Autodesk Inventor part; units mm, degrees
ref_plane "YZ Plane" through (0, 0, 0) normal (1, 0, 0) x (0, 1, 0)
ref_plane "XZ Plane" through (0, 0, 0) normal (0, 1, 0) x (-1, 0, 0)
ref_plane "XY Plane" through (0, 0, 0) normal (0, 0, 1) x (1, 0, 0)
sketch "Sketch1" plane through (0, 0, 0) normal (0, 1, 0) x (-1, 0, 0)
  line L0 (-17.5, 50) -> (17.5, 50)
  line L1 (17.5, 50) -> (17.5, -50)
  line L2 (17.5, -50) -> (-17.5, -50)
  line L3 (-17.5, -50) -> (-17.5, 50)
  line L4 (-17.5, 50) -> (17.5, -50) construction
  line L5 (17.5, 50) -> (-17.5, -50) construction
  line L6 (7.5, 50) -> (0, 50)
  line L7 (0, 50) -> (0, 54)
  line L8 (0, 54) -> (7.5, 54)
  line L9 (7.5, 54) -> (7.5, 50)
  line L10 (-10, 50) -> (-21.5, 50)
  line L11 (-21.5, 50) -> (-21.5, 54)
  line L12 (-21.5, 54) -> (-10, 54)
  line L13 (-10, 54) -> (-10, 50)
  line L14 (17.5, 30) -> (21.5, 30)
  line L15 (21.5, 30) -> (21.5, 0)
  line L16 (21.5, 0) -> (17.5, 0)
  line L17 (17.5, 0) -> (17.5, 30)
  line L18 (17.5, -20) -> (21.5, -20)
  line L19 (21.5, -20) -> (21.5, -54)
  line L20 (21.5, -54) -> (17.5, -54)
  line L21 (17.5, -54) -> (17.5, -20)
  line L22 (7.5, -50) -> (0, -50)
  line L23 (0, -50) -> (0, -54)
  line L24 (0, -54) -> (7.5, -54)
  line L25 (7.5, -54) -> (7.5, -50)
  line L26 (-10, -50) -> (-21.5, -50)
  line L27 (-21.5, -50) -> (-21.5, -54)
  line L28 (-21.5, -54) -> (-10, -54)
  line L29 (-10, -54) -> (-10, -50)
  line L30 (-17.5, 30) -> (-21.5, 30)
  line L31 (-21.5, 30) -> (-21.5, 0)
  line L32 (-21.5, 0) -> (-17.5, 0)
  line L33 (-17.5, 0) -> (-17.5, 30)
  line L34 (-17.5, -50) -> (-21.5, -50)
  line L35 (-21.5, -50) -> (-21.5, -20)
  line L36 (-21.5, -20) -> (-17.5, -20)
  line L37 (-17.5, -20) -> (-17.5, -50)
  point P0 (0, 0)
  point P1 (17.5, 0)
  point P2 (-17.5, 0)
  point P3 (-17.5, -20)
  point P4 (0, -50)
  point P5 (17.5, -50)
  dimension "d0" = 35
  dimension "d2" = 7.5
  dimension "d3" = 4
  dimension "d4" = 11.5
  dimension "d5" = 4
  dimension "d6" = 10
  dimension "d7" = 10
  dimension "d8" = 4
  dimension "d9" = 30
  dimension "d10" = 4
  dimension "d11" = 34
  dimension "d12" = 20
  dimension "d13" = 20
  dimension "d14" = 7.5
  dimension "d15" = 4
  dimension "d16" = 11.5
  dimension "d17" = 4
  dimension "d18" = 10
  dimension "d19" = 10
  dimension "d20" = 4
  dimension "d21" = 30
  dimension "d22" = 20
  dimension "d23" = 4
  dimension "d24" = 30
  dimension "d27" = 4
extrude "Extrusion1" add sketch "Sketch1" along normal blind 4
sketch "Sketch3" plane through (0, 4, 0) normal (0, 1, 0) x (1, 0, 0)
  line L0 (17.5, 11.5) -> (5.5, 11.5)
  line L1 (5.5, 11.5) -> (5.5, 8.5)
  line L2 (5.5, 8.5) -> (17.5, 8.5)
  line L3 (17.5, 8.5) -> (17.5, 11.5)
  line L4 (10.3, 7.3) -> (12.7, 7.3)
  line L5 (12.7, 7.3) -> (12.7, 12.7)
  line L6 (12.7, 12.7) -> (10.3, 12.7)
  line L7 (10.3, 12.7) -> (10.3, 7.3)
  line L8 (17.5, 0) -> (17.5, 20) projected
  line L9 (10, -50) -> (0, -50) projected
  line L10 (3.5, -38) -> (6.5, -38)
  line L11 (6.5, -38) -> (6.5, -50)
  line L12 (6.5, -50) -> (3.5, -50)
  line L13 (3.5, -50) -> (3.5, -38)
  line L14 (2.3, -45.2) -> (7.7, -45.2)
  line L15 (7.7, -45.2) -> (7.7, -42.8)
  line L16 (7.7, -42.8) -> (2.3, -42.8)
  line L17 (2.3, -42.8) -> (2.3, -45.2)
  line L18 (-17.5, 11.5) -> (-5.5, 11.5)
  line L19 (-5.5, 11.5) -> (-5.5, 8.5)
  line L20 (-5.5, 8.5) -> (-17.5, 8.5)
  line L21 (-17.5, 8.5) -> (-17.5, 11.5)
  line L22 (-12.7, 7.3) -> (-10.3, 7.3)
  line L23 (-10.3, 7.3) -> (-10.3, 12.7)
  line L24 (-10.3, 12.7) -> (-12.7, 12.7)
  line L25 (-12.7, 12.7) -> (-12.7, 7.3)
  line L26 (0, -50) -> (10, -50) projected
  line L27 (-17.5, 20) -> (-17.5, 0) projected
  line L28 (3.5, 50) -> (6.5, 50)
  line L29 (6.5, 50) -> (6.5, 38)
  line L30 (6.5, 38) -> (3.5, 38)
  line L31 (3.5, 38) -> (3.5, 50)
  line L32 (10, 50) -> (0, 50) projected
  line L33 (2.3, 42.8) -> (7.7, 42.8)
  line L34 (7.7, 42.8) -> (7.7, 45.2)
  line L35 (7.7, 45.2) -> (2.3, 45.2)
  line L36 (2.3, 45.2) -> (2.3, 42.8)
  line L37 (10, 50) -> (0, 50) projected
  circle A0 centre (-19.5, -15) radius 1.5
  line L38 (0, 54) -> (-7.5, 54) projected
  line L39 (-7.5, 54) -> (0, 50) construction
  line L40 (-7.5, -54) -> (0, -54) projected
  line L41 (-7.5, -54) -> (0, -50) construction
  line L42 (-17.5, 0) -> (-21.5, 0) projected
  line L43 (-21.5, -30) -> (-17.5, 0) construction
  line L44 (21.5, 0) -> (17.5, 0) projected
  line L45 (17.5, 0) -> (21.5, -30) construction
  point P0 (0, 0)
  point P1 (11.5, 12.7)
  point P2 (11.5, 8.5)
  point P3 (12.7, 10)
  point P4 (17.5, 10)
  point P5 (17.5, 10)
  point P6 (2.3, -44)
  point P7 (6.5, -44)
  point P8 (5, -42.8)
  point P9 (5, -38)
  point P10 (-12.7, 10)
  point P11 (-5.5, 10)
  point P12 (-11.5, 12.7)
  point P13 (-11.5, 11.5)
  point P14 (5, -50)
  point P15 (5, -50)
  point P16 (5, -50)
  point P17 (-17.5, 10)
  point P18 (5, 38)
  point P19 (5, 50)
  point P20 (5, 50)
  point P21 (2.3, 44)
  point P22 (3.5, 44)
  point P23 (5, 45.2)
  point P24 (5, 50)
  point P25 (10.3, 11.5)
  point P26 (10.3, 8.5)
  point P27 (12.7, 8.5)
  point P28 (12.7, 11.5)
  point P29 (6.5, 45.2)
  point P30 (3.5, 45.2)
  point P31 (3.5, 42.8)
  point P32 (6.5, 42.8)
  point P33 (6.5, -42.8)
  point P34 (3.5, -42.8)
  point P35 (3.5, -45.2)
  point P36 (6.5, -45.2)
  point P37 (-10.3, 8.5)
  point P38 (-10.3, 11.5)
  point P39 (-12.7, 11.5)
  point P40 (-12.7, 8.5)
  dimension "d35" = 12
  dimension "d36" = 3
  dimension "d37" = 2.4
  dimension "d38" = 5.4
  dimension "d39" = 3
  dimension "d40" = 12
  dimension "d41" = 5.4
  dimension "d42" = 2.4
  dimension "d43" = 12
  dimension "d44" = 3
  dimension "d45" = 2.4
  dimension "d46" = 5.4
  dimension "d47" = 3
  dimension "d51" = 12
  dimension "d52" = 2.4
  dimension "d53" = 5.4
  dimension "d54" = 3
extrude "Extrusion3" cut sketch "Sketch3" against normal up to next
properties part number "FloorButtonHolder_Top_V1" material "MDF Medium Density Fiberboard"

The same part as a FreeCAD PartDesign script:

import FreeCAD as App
import Part
import Sketcher
from FreeCAD import Vector
Q = App.Units.Quantity

doc = App.newDocument("Part")
body = doc.addObject("PartDesign::Body", "Body")

# Sketch on XZ plane
sketch1 = body.newObject("Sketcher::SketchObject", "Sketch")
sketch1.AttachmentSupport = (doc.getObject("XZ_Plane"), [""])
sketch1.MapMode = "FlatFace"
sketch1.addGeometry(Part.LineSegment(Vector(21.5, 50, 0), Vector(17.5, 50, 0)), False)
sketch1.addGeometry(Part.LineSegment(Vector(17.5, 50, 0), Vector(17.5, 30, 0)), False)
sketch1.addGeometry(Part.LineSegment(Vector(17.5, 30, 0), Vector(21.5, 30, 0)), False)
sketch1.addGeometry(Part.LineSegment(Vector(21.5, 30, 0), Vector(21.5, 0, 0)), False)
sketch1.addGeometry(Part.LineSegment(Vector(21.5, 0, 0), Vector(17.5, 0, 0)), False)
sketch1.addGeometry(Part.LineSegment(Vector(17.5, 0, 0), Vector(17.5, -20, 0)), False)
sketch1.addGeometry(Part.LineSegment(Vector(17.5, -20, 0), Vector(21.5, -20, 0)), False)
sketch1.addGeometry(Part.LineSegment(Vector(21.5, -20, 0), Vector(21.5, -54, 0)), False)
sketch1.addGeometry(Part.LineSegment(Vector(21.5, -54, 0), Vector(10, -54, 0)), False)
sketch1.addGeometry(Part.LineSegment(Vector(10, -54, 0), Vector(10, -50, 0)), False)
sketch1.addGeometry(Part.LineSegment(Vector(10, -50, 0), Vector(0, -50, 0)), False)
sketch1.addGeometry(Part.LineSegment(Vector(0, -50, 0), Vector(0, -54, 0)), False)
sketch1.addGeometry(Part.LineSegment(Vector(0, -54, 0), Vector(-7.5, -54, 0)), False)
sketch1.addGeometry(Part.LineSegment(Vector(-7.5, -54, 0), Vector(-7.5, -50, 0)), False)
sketch1.addGeometry(Part.LineSegment(Vector(-7.5, -50, 0), Vector(-17.5, -50, 0)), False)
sketch1.addGeometry(Part.LineSegment(Vector(-17.5, -50, 0), Vector(-17.5, -54, 0)), False)
sketch1.addGeometry(Part.LineSegment(Vector(-17.5, -54, 0), Vector(-21.5, -54, 0)), False)
sketch1.addGeometry(Part.LineSegment(Vector(-21.5, -54, 0), Vector(-21.5, -20, 0)), False)
sketch1.addGeometry(Part.LineSegment(Vector(-21.5, -20, 0), Vector(-17.5, -20, 0)), False)
sketch1.addGeometry(Part.LineSegment(Vector(-17.5, -20, 0), Vector(-17.5, 0, 0)), False)
sketch1.addGeometry(Part.LineSegment(Vector(-17.5, 0, 0), Vector(-21.5, 0, 0)), False)
sketch1.addGeometry(Part.LineSegment(Vector(-21.5, 0, 0), Vector(-21.5, 30, 0)), False)
sketch1.addGeometry(Part.LineSegment(Vector(-21.5, 30, 0), Vector(-17.5, 30, 0)), False)
sketch1.addGeometry(Part.LineSegment(Vector(-17.5, 30, 0), Vector(-17.5, 50, 0)), False)
sketch1.addGeometry(Part.LineSegment(Vector(-17.5, 50, 0), Vector(-7.5, 50, 0)), False)
sketch1.addGeometry(Part.LineSegment(Vector(-7.5, 50, 0), Vector(-7.5, 54, 0)), False)
sketch1.addGeometry(Part.LineSegment(Vector(-7.5, 54, 0), Vector(0, 54, 0)), False)
sketch1.addGeometry(Part.LineSegment(Vector(0, 54, 0), Vector(0, 50, 0)), False)
sketch1.addGeometry(Part.LineSegment(Vector(0, 50, 0), Vector(10, 50, 0)), False)
sketch1.addGeometry(Part.LineSegment(Vector(10, 50, 0), Vector(10, 54, 0)), False)
sketch1.addGeometry(Part.LineSegment(Vector(10, 54, 0), Vector(21.5, 54, 0)), False)
sketch1.addGeometry(Part.LineSegment(Vector(21.5, 54, 0), Vector(21.5, 50, 0)), False)
sketch1.addConstraint(Sketcher.Constraint("Coincident", 0, 2, 1, 1))
sketch1.addConstraint(Sketcher.Constraint("Coincident", 1, 2, 2, 1))
sketch1.addConstraint(Sketcher.Constraint("Coincident", 2, 2, 3, 1))
sketch1.addConstraint(Sketcher.Constraint("Coincident", 3, 2, 4, 1))
sketch1.addConstraint(Sketcher.Constraint("Coincident", 4, 2, 5, 1))
sketch1.addConstraint(Sketcher.Constraint("Coincident", 5, 2, 6, 1))
sketch1.addConstraint(Sketcher.Constraint("Coincident", 6, 2, 7, 1))
sketch1.addConstraint(Sketcher.Constraint("Coincident", 7, 2, 8, 1))
sketch1.addConstraint(Sketcher.Constraint("Coincident", 8, 2, 9, 1))
sketch1.addConstraint(Sketcher.Constraint("Coincident", 9, 2, 10, 1))
sketch1.addConstraint(Sketcher.Constraint("Coincident", 10, 2, 11, 1))
sketch1.addConstraint(Sketcher.Constraint("Coincident", 11, 2, 12, 1))
sketch1.addConstraint(Sketcher.Constraint("Coincident", 12, 2, 13, 1))
sketch1.addConstraint(Sketcher.Constraint("Coincident", 13, 2, 14, 1))
sketch1.addConstraint(Sketcher.Constraint("Coincident", 14, 2, 15, 1))
sketch1.addConstraint(Sketcher.Constraint("Coincident", 15, 2, 16, 1))
sketch1.addConstraint(Sketcher.Constraint("Coincident", 16, 2, 17, 1))
sketch1.addConstraint(Sketcher.Constraint("Coincident", 17, 2, 18, 1))
sketch1.addConstraint(Sketcher.Constraint("Coincident", 18, 2, 19, 1))
sketch1.addConstraint(Sketcher.Constraint("Coincident", 19, 2, 20, 1))
sketch1.addConstraint(Sketcher.Constraint("Coincident", 20, 2, 21, 1))
sketch1.addConstraint(Sketcher.Constraint("Coincident", 21, 2, 22, 1))
sketch1.addConstraint(Sketcher.Constraint("Coincident", 22, 2, 23, 1))
sketch1.addConstraint(Sketcher.Constraint("Coincident", 23, 2, 24, 1))
sketch1.addConstraint(Sketcher.Constraint("Coincident", 24, 2, 25, 1))
sketch1.addConstraint(Sketcher.Constraint("Coincident", 25, 2, 26, 1))
sketch1.addConstraint(Sketcher.Constraint("Coincident", 26, 2, 27, 1))
sketch1.addConstraint(Sketcher.Constraint("Coincident", 27, 2, 28, 1))
sketch1.addConstraint(Sketcher.Constraint("Coincident", 28, 2, 29, 1))
sketch1.addConstraint(Sketcher.Constraint("Coincident", 29, 2, 30, 1))
sketch1.addConstraint(Sketcher.Constraint("Coincident", 30, 2, 31, 1))
sketch1.addConstraint(Sketcher.Constraint("Coincident", 31, 2, 0, 1))
sketch1.addConstraint(Sketcher.Constraint("Horizontal", 0))
sketch1.addConstraint(Sketcher.Constraint("Vertical", 1))
sketch1.addConstraint(Sketcher.Constraint("Horizontal", 2))
sketch1.addConstraint(Sketcher.Constraint("Vertical", 3))
sketch1.addConstraint(Sketcher.Constraint("Horizontal", 4))
sketch1.addConstraint(Sketcher.Constraint("Vertical", 5))
sketch1.addConstraint(Sketcher.Constraint("Horizontal", 6))
sketch1.addConstraint(Sketcher.Constraint("Vertical", 7))
sketch1.addConstraint(Sketcher.Constraint("Horizontal", 8))
sketch1.addConstraint(Sketcher.Constraint("Vertical", 9))
sketch1.addConstraint(Sketcher.Constraint("Horizontal", 10))
sketch1.addConstraint(Sketcher.Constraint("Vertical", 11))
sketch1.addConstraint(Sketcher.Constraint("Horizontal", 12))
sketch1.addConstraint(Sketcher.Constraint("Vertical", 13))
sketch1.addConstraint(Sketcher.Constraint("Horizontal", 14))
sketch1.addConstraint(Sketcher.Constraint("Vertical", 15))
sketch1.addConstraint(Sketcher.Constraint("Horizontal", 16))
sketch1.addConstraint(Sketcher.Constraint("Vertical", 17))
sketch1.addConstraint(Sketcher.Constraint("Horizontal", 18))
sketch1.addConstraint(Sketcher.Constraint("Vertical", 19))
sketch1.addConstraint(Sketcher.Constraint("Horizontal", 20))
sketch1.addConstraint(Sketcher.Constraint("Vertical", 21))
sketch1.addConstraint(Sketcher.Constraint("Horizontal", 22))
sketch1.addConstraint(Sketcher.Constraint("Vertical", 23))
sketch1.addConstraint(Sketcher.Constraint("Horizontal", 24))
sketch1.addConstraint(Sketcher.Constraint("Vertical", 25))
sketch1.addConstraint(Sketcher.Constraint("Horizontal", 26))
sketch1.addConstraint(Sketcher.Constraint("Vertical", 27))
sketch1.addConstraint(Sketcher.Constraint("Horizontal", 28))
sketch1.addConstraint(Sketcher.Constraint("Vertical", 29))
sketch1.addConstraint(Sketcher.Constraint("Horizontal", 30))
sketch1.addConstraint(Sketcher.Constraint("Vertical", 31))
sketch1.addConstraint(Sketcher.Constraint("Symmetric", 0, 2, 14, 2, -1, 1))
sketch1.addConstraint(Sketcher.Constraint("Symmetric", 4, 2, 19, 2, -1, 1))
sketch1.addConstraint(Sketcher.Constraint("Symmetric", 11, 2, 26, 2, -1, 1))
sketch1.addConstraint(Sketcher.Constraint("Symmetric", 16, 2, 30, 2, -1, 1))
sketch1.addConstraint(Sketcher.Constraint("Symmetric", 7, 2, 16, 2, -2))
sketch1.addConstraint(Sketcher.Constraint("Symmetric", 3, 2, 20, 2, -2))
sketch1.addConstraint(Sketcher.Constraint("Symmetric", 1, 2, 22, 2, -2))
sketch1.addConstraint(Sketcher.Constraint("Symmetric", 13, 2, 24, 2, -1))
sketch1.addConstraint(Sketcher.Constraint("Symmetric", 10, 2, 27, 2, -1))
sketch1.addConstraint(Sketcher.Constraint("Horizontal", 8, 2, 11, 2))
sketch1.addConstraint(Sketcher.Constraint("Horizontal", 10, 2, 13, 2))
sketch1.addConstraint(Sketcher.Constraint("Horizontal", 6, 2, 17, 2))
sketch1.addConstraint(Sketcher.Constraint("Vertical", 1, 2, 4, 2))
sketch1.addConstraint(Sketcher.Constraint("Vertical", 3, 2, 6, 2))
sketch1.addConstraint(Sketcher.Constraint("Vertical", 9, 2, 28, 2))
sketch1.addConstraint(Sketcher.Constraint("Equal", 10, 14))
sketch1.addConstraint(Sketcher.Constraint("Equal", 1, 5))
sketch1.addConstraint(Sketcher.Constraint("Equal", 22, 9))
sketch1.addConstraint(Sketcher.Constraint("DistanceX", 0, 2, 0, 1, Q("4 mm")))
sketch1.addConstraint(Sketcher.Constraint("DistanceX", 10, 2, 10, 1, Q("10 mm")))
sketch1.addConstraint(Sketcher.Constraint("DistanceY", 1, 2, 1, 1, Q("20 mm")))
sketch1.addConstraint(Sketcher.Constraint("DistanceY", 3, 2, 3, 1, Q("30 mm")))
sketch1.addConstraint(Sketcher.Constraint("DistanceX", 8, 2, 8, 1, Q("11.5 mm")))
pad1 = body.newObject("PartDesign::Pad", "Pad")
pad1.Profile = sketch1
pad1.Length = 4
pad1.Reversed = True

# Sketch on XZ plane
sketch2 = body.newObject("Sketcher::SketchObject", "Sketch001")
sketch2.AttachmentSupport = (doc.getObject("XZ_Plane"), [""])
sketch2.MapMode = "FlatFace"
sketch2.AttachmentOffset = App.Placement(Vector(0, 0, -4), App.Rotation())
sketch2.addGeometry(Part.LineSegment(Vector(17.5, -8.5, 0), Vector(17.5, -11.5, 0)), False)
sketch2.addGeometry(Part.LineSegment(Vector(17.5, -11.5, 0), Vector(12.7, -11.5, 0)), False)
sketch2.addGeometry(Part.LineSegment(Vector(12.7, -11.5, 0), Vector(12.7, -12.7, 0)), False)
sketch2.addGeometry(Part.LineSegment(Vector(12.7, -12.7, 0), Vector(10.3, -12.7, 0)), False)
sketch2.addGeometry(Part.LineSegment(Vector(10.3, -12.7, 0), Vector(10.3, -11.5, 0)), False)
sketch2.addGeometry(Part.LineSegment(Vector(10.3, -11.5, 0), Vector(5.5, -11.5, 0)), False)
sketch2.addGeometry(Part.LineSegment(Vector(5.5, -11.5, 0), Vector(5.5, -8.5, 0)), False)
sketch2.addGeometry(Part.LineSegment(Vector(5.5, -8.5, 0), Vector(10.3, -8.5, 0)), False)
sketch2.addGeometry(Part.LineSegment(Vector(10.3, -8.5, 0), Vector(10.3, -7.3, 0)), False)
sketch2.addGeometry(Part.LineSegment(Vector(10.3, -7.3, 0), Vector(12.7, -7.3, 0)), False)
sketch2.addGeometry(Part.LineSegment(Vector(12.7, -7.3, 0), Vector(12.7, -8.5, 0)), False)
sketch2.addGeometry(Part.LineSegment(Vector(12.7, -8.5, 0), Vector(17.5, -8.5, 0)), False)
sketch2.addGeometry(Part.LineSegment(Vector(3.5, 50, 0), Vector(6.5, 50, 0)), False)
sketch2.addGeometry(Part.LineSegment(Vector(6.5, 50, 0), Vector(6.5, 45.2, 0)), False)
sketch2.addGeometry(Part.LineSegment(Vector(6.5, 45.2, 0), Vector(7.7, 45.2, 0)), False)
sketch2.addGeometry(Part.LineSegment(Vector(7.7, 45.2, 0), Vector(7.7, 42.8, 0)), False)
sketch2.addGeometry(Part.LineSegment(Vector(7.7, 42.8, 0), Vector(6.5, 42.8, 0)), False)
sketch2.addGeometry(Part.LineSegment(Vector(6.5, 42.8, 0), Vector(6.5, 38, 0)), False)
sketch2.addGeometry(Part.LineSegment(Vector(6.5, 38, 0), Vector(3.5, 38, 0)), False)
sketch2.addGeometry(Part.LineSegment(Vector(3.5, 38, 0), Vector(3.5, 42.8, 0)), False)
sketch2.addGeometry(Part.LineSegment(Vector(3.5, 42.8, 0), Vector(2.3, 42.8, 0)), False)
sketch2.addGeometry(Part.LineSegment(Vector(2.3, 42.8, 0), Vector(2.3, 45.2, 0)), False)
sketch2.addGeometry(Part.LineSegment(Vector(2.3, 45.2, 0), Vector(3.5, 45.2, 0)), False)
sketch2.addGeometry(Part.LineSegment(Vector(3.5, 45.2, 0), Vector(3.5, 50, 0)), False)
sketch2.addGeometry(Part.LineSegment(Vector(-12.7, -11.5, 0), Vector(-17.5, -11.5, 0)), False)
sketch2.addGeometry(Part.LineSegment(Vector(-17.5, -11.5, 0), Vector(-17.5, -8.5, 0)), False)
sketch2.addGeometry(Part.LineSegment(Vector(-17.5, -8.5, 0), Vector(-12.7, -8.5, 0)), False)
sketch2.addGeometry(Part.LineSegment(Vector(-12.7, -8.5, 0), Vector(-12.7, -7.3, 0)), False)
sketch2.addGeometry(Part.LineSegment(Vector(-12.7, -7.3, 0), Vector(-10.3, -7.3, 0)), False)
sketch2.addGeometry(Part.LineSegment(Vector(-10.3, -7.3, 0), Vector(-10.3, -8.5, 0)), False)
sketch2.addGeometry(Part.LineSegment(Vector(-10.3, -8.5, 0), Vector(-5.5, -8.5, 0)), False)
sketch2.addGeometry(Part.LineSegment(Vector(-5.5, -8.5, 0), Vector(-5.5, -11.5, 0)), False)
sketch2.addGeometry(Part.LineSegment(Vector(-5.5, -11.5, 0), Vector(-10.3, -11.5, 0)), False)
sketch2.addGeometry(Part.LineSegment(Vector(-10.3, -11.5, 0), Vector(-10.3, -12.7, 0)), False)
sketch2.addGeometry(Part.LineSegment(Vector(-10.3, -12.7, 0), Vector(-12.7, -12.7, 0)), False)
sketch2.addGeometry(Part.LineSegment(Vector(-12.7, -12.7, 0), Vector(-12.7, -11.5, 0)), False)
sketch2.addGeometry(Part.LineSegment(Vector(6.5, -50, 0), Vector(3.5, -50, 0)), False)
sketch2.addGeometry(Part.LineSegment(Vector(3.5, -50, 0), Vector(3.5, -45.2, 0)), False)
sketch2.addGeometry(Part.LineSegment(Vector(3.5, -45.2, 0), Vector(2.3, -45.2, 0)), False)
sketch2.addGeometry(Part.LineSegment(Vector(2.3, -45.2, 0), Vector(2.3, -42.8, 0)), False)
sketch2.addGeometry(Part.LineSegment(Vector(2.3, -42.8, 0), Vector(3.5, -42.8, 0)), False)
sketch2.addGeometry(Part.LineSegment(Vector(3.5, -42.8, 0), Vector(3.5, -38, 0)), False)
sketch2.addGeometry(Part.LineSegment(Vector(3.5, -38, 0), Vector(6.5, -38, 0)), False)
sketch2.addGeometry(Part.LineSegment(Vector(6.5, -38, 0), Vector(6.5, -42.8, 0)), False)
sketch2.addGeometry(Part.LineSegment(Vector(6.5, -42.8, 0), Vector(7.7, -42.8, 0)), False)
sketch2.addGeometry(Part.LineSegment(Vector(7.7, -42.8, 0), Vector(7.7, -45.2, 0)), False)
sketch2.addGeometry(Part.LineSegment(Vector(7.7, -45.2, 0), Vector(6.5, -45.2, 0)), False)
sketch2.addGeometry(Part.LineSegment(Vector(6.5, -45.2, 0), Vector(6.5, -50, 0)), False)
sketch2.addGeometry(Part.Circle(Vector(-19.5, 15, 0), Vector(0, 0, 1), 1.5), False)
sketch2.addConstraint(Sketcher.Constraint("Coincident", 0, 2, 1, 1))
sketch2.addConstraint(Sketcher.Constraint("Coincident", 1, 2, 2, 1))
sketch2.addConstraint(Sketcher.Constraint("Coincident", 2, 2, 3, 1))
sketch2.addConstraint(Sketcher.Constraint("Coincident", 3, 2, 4, 1))
sketch2.addConstraint(Sketcher.Constraint("Coincident", 4, 2, 5, 1))
sketch2.addConstraint(Sketcher.Constraint("Coincident", 5, 2, 6, 1))
sketch2.addConstraint(Sketcher.Constraint("Coincident", 6, 2, 7, 1))
sketch2.addConstraint(Sketcher.Constraint("Coincident", 7, 2, 8, 1))
sketch2.addConstraint(Sketcher.Constraint("Coincident", 8, 2, 9, 1))
sketch2.addConstraint(Sketcher.Constraint("Coincident", 9, 2, 10, 1))
sketch2.addConstraint(Sketcher.Constraint("Coincident", 10, 2, 11, 1))
sketch2.addConstraint(Sketcher.Constraint("Coincident", 11, 2, 0, 1))
sketch2.addConstraint(Sketcher.Constraint("Coincident", 12, 2, 13, 1))
sketch2.addConstraint(Sketcher.Constraint("Coincident", 13, 2, 14, 1))
sketch2.addConstraint(Sketcher.Constraint("Coincident", 14, 2, 15, 1))
sketch2.addConstraint(Sketcher.Constraint("Coincident", 15, 2, 16, 1))
sketch2.addConstraint(Sketcher.Constraint("Coincident", 16, 2, 17, 1))
sketch2.addConstraint(Sketcher.Constraint("Coincident", 17, 2, 18, 1))
sketch2.addConstraint(Sketcher.Constraint("Coincident", 18, 2, 19, 1))
sketch2.addConstraint(Sketcher.Constraint("Coincident", 19, 2, 20, 1))
sketch2.addConstraint(Sketcher.Constraint("Coincident", 20, 2, 21, 1))
sketch2.addConstraint(Sketcher.Constraint("Coincident", 21, 2, 22, 1))
sketch2.addConstraint(Sketcher.Constraint("Coincident", 22, 2, 23, 1))
sketch2.addConstraint(Sketcher.Constraint("Coincident", 23, 2, 12, 1))
sketch2.addConstraint(Sketcher.Constraint("Coincident", 24, 2, 25, 1))
sketch2.addConstraint(Sketcher.Constraint("Coincident", 25, 2, 26, 1))
sketch2.addConstraint(Sketcher.Constraint("Coincident", 26, 2, 27, 1))
sketch2.addConstraint(Sketcher.Constraint("Coincident", 27, 2, 28, 1))
sketch2.addConstraint(Sketcher.Constraint("Coincident", 28, 2, 29, 1))
sketch2.addConstraint(Sketcher.Constraint("Coincident", 29, 2, 30, 1))
sketch2.addConstraint(Sketcher.Constraint("Coincident", 30, 2, 31, 1))
sketch2.addConstraint(Sketcher.Constraint("Coincident", 31, 2, 32, 1))
sketch2.addConstraint(Sketcher.Constraint("Coincident", 32, 2, 33, 1))
sketch2.addConstraint(Sketcher.Constraint("Coincident", 33, 2, 34, 1))
sketch2.addConstraint(Sketcher.Constraint("Coincident", 34, 2, 35, 1))
sketch2.addConstraint(Sketcher.Constraint("Coincident", 35, 2, 24, 1))
sketch2.addConstraint(Sketcher.Constraint("Coincident", 36, 2, 37, 1))
sketch2.addConstraint(Sketcher.Constraint("Coincident", 37, 2, 38, 1))
sketch2.addConstraint(Sketcher.Constraint("Coincident", 38, 2, 39, 1))
sketch2.addConstraint(Sketcher.Constraint("Coincident", 39, 2, 40, 1))
sketch2.addConstraint(Sketcher.Constraint("Coincident", 40, 2, 41, 1))
sketch2.addConstraint(Sketcher.Constraint("Coincident", 41, 2, 42, 1))
sketch2.addConstraint(Sketcher.Constraint("Coincident", 42, 2, 43, 1))
sketch2.addConstraint(Sketcher.Constraint("Coincident", 43, 2, 44, 1))
sketch2.addConstraint(Sketcher.Constraint("Coincident", 44, 2, 45, 1))
sketch2.addConstraint(Sketcher.Constraint("Coincident", 45, 2, 46, 1))
sketch2.addConstraint(Sketcher.Constraint("Coincident", 46, 2, 47, 1))
sketch2.addConstraint(Sketcher.Constraint("Coincident", 47, 2, 36, 1))
sketch2.addConstraint(Sketcher.Constraint("Vertical", 0))
sketch2.addConstraint(Sketcher.Constraint("Horizontal", 1))
sketch2.addConstraint(Sketcher.Constraint("Vertical", 2))
sketch2.addConstraint(Sketcher.Constraint("Horizontal", 3))
sketch2.addConstraint(Sketcher.Constraint("Vertical", 4))
sketch2.addConstraint(Sketcher.Constraint("Horizontal", 5))
sketch2.addConstraint(Sketcher.Constraint("Vertical", 6))
sketch2.addConstraint(Sketcher.Constraint("Horizontal", 7))
sketch2.addConstraint(Sketcher.Constraint("Vertical", 8))
sketch2.addConstraint(Sketcher.Constraint("Horizontal", 9))
sketch2.addConstraint(Sketcher.Constraint("Vertical", 10))
sketch2.addConstraint(Sketcher.Constraint("Horizontal", 11))
sketch2.addConstraint(Sketcher.Constraint("Horizontal", 12))
sketch2.addConstraint(Sketcher.Constraint("Vertical", 13))
sketch2.addConstraint(Sketcher.Constraint("Horizontal", 14))
sketch2.addConstraint(Sketcher.Constraint("Vertical", 15))
sketch2.addConstraint(Sketcher.Constraint("Horizontal", 16))
sketch2.addConstraint(Sketcher.Constraint("Vertical", 17))
sketch2.addConstraint(Sketcher.Constraint("Horizontal", 18))
sketch2.addConstraint(Sketcher.Constraint("Vertical", 19))
sketch2.addConstraint(Sketcher.Constraint("Horizontal", 20))
sketch2.addConstraint(Sketcher.Constraint("Vertical", 21))
sketch2.addConstraint(Sketcher.Constraint("Horizontal", 22))
sketch2.addConstraint(Sketcher.Constraint("Vertical", 23))
sketch2.addConstraint(Sketcher.Constraint("Horizontal", 24))
sketch2.addConstraint(Sketcher.Constraint("Vertical", 25))
sketch2.addConstraint(Sketcher.Constraint("Horizontal", 26))
sketch2.addConstraint(Sketcher.Constraint("Vertical", 27))
sketch2.addConstraint(Sketcher.Constraint("Horizontal", 28))
sketch2.addConstraint(Sketcher.Constraint("Vertical", 29))
sketch2.addConstraint(Sketcher.Constraint("Horizontal", 30))
sketch2.addConstraint(Sketcher.Constraint("Vertical", 31))
sketch2.addConstraint(Sketcher.Constraint("Horizontal", 32))
sketch2.addConstraint(Sketcher.Constraint("Vertical", 33))
sketch2.addConstraint(Sketcher.Constraint("Horizontal", 34))
sketch2.addConstraint(Sketcher.Constraint("Vertical", 35))
sketch2.addConstraint(Sketcher.Constraint("Horizontal", 36))
sketch2.addConstraint(Sketcher.Constraint("Vertical", 37))
sketch2.addConstraint(Sketcher.Constraint("Horizontal", 38))
sketch2.addConstraint(Sketcher.Constraint("Vertical", 39))
sketch2.addConstraint(Sketcher.Constraint("Horizontal", 40))
sketch2.addConstraint(Sketcher.Constraint("Vertical", 41))
sketch2.addConstraint(Sketcher.Constraint("Horizontal", 42))
sketch2.addConstraint(Sketcher.Constraint("Vertical", 43))
sketch2.addConstraint(Sketcher.Constraint("Horizontal", 44))
sketch2.addConstraint(Sketcher.Constraint("Vertical", 45))
sketch2.addConstraint(Sketcher.Constraint("Horizontal", 46))
sketch2.addConstraint(Sketcher.Constraint("Vertical", 47))
sketch2.addConstraint(Sketcher.Constraint("Symmetric", 0, 2, 24, 2, -2))
sketch2.addConstraint(Sketcher.Constraint("Symmetric", 10, 2, 26, 2, -2))
sketch2.addConstraint(Sketcher.Constraint("Symmetric", 8, 2, 28, 2, -2))
sketch2.addConstraint(Sketcher.Constraint("Symmetric", 6, 2, 30, 2, -2))
sketch2.addConstraint(Sketcher.Constraint("Symmetric", 4, 2, 32, 2, -2))
sketch2.addConstraint(Sketcher.Constraint("Symmetric", 2, 2, 34, 2, -2))
sketch2.addConstraint(Sketcher.Constraint("Symmetric", 23, 2, 36, 2, -1))
sketch2.addConstraint(Sketcher.Constraint("Symmetric", 21, 2, 38, 2, -1))
sketch2.addConstraint(Sketcher.Constraint("Symmetric", 19, 2, 40, 2, -1))
sketch2.addConstraint(Sketcher.Constraint("Symmetric", 17, 2, 42, 2, -1))
sketch2.addConstraint(Sketcher.Constraint("Symmetric", 15, 2, 44, 2, -1))
sketch2.addConstraint(Sketcher.Constraint("Symmetric", 13, 2, 46, 2, -1))
sketch2.addConstraint(Sketcher.Constraint("Horizontal", 1, 2, 4, 2))
sketch2.addConstraint(Sketcher.Constraint("Horizontal", 7, 2, 10, 2))
sketch2.addConstraint(Sketcher.Constraint("Horizontal", 16, 2, 19, 2))
sketch2.addConstraint(Sketcher.Constraint("Horizontal", 14, 2, 21, 2))
sketch2.addConstraint(Sketcher.Constraint("Vertical", 4, 2, 7, 2))
sketch2.addConstraint(Sketcher.Constraint("Vertical", 2, 2, 9, 2))
sketch2.addConstraint(Sketcher.Constraint("Vertical", 13, 2, 16, 2))
sketch2.addConstraint(Sketcher.Constraint("Vertical", 19, 2, 22, 2))
sketch2.addConstraint(Sketcher.Constraint("Equal", 1, 5))
sketch2.addConstraint(Sketcher.Constraint("Equal", 16, 20))
sketch2.addConstraint(Sketcher.Constraint("Equal", 42, 0))
sketch2.addConstraint(Sketcher.Constraint("Equal", 46, 2))
sketch2.addConstraint(Sketcher.Constraint("Equal", 4, 8))
sketch2.addConstraint(Sketcher.Constraint("Equal", 32, 13))
sketch2.addConstraint(Sketcher.Constraint("Equal", 34, 15))
sketch2.addConstraint(Sketcher.Constraint("Equal", 13, 17))
sketch2.addConstraint(Sketcher.Constraint("Diameter", 48, Q("3 mm")))
sketch2.addConstraint(Sketcher.Constraint("DistanceX", 12, 1, 12, 2, Q("3 mm")))
sketch2.addConstraint(Sketcher.Constraint("DistanceX", 3, 2, 3, 1, Q("2.4 mm")))
sketch2.addConstraint(Sketcher.Constraint("DistanceX", 5, 2, 0, 2, Q("12 mm")))
sketch2.addConstraint(Sketcher.Constraint("DistanceY", 3, 2, 8, 2, Q("5.4 mm")))
sketch2.addConstraint(Sketcher.Constraint("DistanceY", -1, 1, 48, 3, Q("15 mm")))
sketch2.addConstraint(Sketcher.Constraint("DistanceY", -1, 1, 12, 2, Q("50 mm")))
sketch2.addConstraint(Sketcher.Constraint("DistanceX", 48, 3, 0, 2, Q("37 mm")))
sketch2.addConstraint(Sketcher.Constraint("DistanceX", 48, 3, 12, 2, Q("26 mm")))
sketch2.addConstraint(Sketcher.Constraint("DistanceX", 24, 2, 5, 2, Q("23 mm")))
sketch2.addConstraint(Sketcher.Constraint("DistanceY", 0, 2, -1, 1, Q("11.5 mm")))
pocket1 = body.newObject("PartDesign::Pocket", "Pocket")
pocket1.Profile = sketch2
pocket1.Type = "UpToFirst"
pocket1.Reversed = True

doc.recompute()
